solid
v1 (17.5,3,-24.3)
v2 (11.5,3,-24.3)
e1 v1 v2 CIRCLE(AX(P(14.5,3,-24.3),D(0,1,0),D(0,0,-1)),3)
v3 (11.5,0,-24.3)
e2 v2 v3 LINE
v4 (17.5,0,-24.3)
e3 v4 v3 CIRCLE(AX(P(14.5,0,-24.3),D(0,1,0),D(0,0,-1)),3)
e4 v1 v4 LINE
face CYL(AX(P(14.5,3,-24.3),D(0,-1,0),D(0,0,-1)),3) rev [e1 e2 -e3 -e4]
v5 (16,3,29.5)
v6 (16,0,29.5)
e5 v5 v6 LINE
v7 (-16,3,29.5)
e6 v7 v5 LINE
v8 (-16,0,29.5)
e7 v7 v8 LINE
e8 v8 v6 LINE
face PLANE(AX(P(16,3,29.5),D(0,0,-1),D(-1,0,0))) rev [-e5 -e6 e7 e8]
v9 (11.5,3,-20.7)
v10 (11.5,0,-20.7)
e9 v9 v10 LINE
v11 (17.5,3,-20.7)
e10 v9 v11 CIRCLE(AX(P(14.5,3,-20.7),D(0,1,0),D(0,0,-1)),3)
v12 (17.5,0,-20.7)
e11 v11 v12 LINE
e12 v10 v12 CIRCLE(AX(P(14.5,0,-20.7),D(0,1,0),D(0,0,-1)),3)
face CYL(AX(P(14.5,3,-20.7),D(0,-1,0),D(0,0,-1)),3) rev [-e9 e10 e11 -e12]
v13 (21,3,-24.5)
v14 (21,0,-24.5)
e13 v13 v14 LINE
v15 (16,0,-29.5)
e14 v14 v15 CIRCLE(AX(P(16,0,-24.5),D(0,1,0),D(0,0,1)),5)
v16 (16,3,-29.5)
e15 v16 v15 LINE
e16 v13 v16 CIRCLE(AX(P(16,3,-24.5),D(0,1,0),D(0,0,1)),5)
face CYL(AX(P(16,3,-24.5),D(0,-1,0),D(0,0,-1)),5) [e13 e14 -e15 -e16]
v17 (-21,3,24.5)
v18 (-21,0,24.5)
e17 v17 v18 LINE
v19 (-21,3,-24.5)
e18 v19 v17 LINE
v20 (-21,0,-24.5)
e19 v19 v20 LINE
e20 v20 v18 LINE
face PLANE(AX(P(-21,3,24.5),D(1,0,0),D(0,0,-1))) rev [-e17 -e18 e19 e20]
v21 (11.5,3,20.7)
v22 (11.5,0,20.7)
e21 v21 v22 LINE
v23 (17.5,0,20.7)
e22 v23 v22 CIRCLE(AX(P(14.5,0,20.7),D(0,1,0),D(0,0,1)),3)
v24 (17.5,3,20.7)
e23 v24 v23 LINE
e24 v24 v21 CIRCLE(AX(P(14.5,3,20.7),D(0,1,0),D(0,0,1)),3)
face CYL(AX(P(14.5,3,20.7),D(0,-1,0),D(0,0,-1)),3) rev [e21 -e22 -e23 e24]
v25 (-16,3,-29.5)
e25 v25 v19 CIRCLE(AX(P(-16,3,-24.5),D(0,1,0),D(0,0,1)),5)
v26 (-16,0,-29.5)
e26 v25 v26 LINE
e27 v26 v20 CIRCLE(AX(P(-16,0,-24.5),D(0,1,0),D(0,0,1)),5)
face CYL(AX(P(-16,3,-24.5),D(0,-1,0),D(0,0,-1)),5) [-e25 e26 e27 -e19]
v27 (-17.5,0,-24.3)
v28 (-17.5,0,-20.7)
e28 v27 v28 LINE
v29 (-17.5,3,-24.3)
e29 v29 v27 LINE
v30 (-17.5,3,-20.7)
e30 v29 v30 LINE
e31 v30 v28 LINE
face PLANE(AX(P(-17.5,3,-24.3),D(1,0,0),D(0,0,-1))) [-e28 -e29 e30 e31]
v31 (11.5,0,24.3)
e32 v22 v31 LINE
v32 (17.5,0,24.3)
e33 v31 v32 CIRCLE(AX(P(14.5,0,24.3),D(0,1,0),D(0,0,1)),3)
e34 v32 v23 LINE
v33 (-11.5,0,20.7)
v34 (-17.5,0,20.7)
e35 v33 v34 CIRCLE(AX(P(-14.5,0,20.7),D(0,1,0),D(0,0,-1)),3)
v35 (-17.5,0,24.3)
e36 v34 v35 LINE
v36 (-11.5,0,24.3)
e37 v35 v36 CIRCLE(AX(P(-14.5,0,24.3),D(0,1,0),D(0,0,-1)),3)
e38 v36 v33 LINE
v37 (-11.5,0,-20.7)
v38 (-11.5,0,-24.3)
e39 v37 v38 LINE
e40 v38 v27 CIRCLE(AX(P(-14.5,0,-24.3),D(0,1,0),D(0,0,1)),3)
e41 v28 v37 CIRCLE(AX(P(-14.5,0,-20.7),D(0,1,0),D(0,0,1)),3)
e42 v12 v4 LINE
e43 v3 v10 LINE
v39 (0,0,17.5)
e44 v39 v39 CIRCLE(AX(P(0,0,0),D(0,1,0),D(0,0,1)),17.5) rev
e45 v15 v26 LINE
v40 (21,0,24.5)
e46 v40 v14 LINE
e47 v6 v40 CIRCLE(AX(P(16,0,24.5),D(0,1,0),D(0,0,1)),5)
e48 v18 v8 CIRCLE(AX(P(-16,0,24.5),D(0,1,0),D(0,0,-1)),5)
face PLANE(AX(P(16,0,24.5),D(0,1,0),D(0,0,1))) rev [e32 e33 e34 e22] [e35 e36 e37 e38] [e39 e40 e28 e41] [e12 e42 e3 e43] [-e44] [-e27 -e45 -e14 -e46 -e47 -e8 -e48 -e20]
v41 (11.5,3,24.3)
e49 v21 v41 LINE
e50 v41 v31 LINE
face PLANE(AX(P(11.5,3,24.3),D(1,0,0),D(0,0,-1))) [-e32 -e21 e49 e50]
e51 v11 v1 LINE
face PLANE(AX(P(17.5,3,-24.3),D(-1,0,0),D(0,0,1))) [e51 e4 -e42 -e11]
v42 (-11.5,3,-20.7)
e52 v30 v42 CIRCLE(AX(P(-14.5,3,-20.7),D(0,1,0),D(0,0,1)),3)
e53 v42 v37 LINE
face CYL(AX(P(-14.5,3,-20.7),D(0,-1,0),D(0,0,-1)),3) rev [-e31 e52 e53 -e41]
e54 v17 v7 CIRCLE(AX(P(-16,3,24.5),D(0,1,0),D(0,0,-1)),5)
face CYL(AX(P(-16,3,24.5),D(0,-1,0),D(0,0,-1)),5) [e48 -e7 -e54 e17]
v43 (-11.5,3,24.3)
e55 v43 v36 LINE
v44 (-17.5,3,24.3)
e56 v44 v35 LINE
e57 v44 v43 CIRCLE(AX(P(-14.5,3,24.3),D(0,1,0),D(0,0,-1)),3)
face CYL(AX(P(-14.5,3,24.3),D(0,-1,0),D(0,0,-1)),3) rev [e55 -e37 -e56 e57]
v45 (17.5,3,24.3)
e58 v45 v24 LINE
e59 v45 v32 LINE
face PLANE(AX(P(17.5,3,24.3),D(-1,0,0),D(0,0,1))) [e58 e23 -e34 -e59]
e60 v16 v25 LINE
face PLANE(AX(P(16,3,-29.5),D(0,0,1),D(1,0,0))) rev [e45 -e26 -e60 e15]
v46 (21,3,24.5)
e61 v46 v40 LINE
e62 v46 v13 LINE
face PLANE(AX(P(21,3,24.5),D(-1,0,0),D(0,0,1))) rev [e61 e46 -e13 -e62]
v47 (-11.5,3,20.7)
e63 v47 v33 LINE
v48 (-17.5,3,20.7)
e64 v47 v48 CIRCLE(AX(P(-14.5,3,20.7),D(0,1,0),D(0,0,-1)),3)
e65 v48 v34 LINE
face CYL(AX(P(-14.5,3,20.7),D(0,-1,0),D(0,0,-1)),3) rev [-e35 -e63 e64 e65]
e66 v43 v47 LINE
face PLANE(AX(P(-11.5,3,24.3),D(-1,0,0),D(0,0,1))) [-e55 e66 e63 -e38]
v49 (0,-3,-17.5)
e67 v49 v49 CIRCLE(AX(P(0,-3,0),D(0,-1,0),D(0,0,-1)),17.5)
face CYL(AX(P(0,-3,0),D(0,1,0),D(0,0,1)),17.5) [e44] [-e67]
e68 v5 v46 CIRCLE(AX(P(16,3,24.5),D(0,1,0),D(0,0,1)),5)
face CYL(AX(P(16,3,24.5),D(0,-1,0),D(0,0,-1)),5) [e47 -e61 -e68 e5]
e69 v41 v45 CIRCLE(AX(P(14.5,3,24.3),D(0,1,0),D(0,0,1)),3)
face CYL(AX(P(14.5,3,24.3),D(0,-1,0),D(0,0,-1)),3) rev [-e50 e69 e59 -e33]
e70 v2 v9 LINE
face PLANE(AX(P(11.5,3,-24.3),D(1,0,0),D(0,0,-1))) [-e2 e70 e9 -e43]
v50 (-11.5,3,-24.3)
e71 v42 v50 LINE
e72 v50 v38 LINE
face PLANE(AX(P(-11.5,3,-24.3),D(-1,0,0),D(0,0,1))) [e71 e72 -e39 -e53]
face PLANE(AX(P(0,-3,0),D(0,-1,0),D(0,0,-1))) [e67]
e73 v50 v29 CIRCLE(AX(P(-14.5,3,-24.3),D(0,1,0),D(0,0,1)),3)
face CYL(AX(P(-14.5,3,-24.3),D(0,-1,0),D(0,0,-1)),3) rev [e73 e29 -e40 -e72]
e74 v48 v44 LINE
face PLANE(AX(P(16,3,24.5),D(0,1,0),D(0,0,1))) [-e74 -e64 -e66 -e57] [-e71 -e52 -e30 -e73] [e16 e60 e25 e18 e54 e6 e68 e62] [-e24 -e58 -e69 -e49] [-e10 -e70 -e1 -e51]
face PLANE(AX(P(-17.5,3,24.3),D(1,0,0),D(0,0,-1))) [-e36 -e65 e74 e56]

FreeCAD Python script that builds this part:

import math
import FreeCAD as App
import Part
import Sketcher
from FreeCAD import Vector
Q = App.Units.Quantity

doc = App.newDocument("Part")
body = doc.addObject("PartDesign::Body", "Body")

# Sketch on XZ plane
sketch1 = body.newObject("Sketcher::SketchObject", "Sketch")
sketch1.AttachmentSupport = (doc.getObject("XZ_Plane"), [""])
sketch1.MapMode = "FlatFace"
sketch1.addGeometry(Part.LineSegment(Vector(-16, 29.5, 0), Vector(16, 29.5, 0)), False)
sketch1.addGeometry(Part.ArcOfCircle(Part.Circle(Vector(16, 24.5, 0), Vector(0, 0, 1), 5), math.radians(0), math.radians(90)), False)
sketch1.addGeometry(Part.LineSegment(Vector(21, 24.5, 0), Vector(21, -24.5, 0)), False)
sketch1.addGeometry(Part.ArcOfCircle(Part.Circle(Vector(16, -24.5, 0), Vector(0, 0, 1), 5), math.radians(-90), math.radians(0)), False)
sketch1.addGeometry(Part.LineSegment(Vector(16, -29.5, 0), Vector(-16, -29.5, 0)), False)
sketch1.addGeometry(Part.ArcOfCircle(Part.Circle(Vector(-16, -24.5, 0), Vector(0, 0, 1), 5), math.radians(180), math.radians(270)), False)
sketch1.addGeometry(Part.LineSegment(Vector(-21, -24.5, 0), Vector(-21, 24.5, 0)), False)
sketch1.addGeometry(Part.ArcOfCircle(Part.Circle(Vector(-16, 24.5, 0), Vector(0, 0, 1), 5), math.radians(90), math.radians(180)), False)
sketch1.addGeometry(Part.LineSegment(Vector(11.5, 24.3, 0), Vector(11.5, 20.7, 0)), False)
sketch1.addGeometry(Part.ArcOfCircle(Part.Circle(Vector(14.5, 20.7, 0), Vector(0, 0, 1), 3), math.radians(180), math.radians(360)), False)
sketch1.addGeometry(Part.LineSegment(Vector(17.5, 20.7, 0), Vector(17.5, 24.3, 0)), False)
sketch1.addGeometry(Part.ArcOfCircle(Part.Circle(Vector(14.5, 24.3, 0), Vector(0, 0, 1), 3), math.radians(0), math.radians(180)), False)
sketch1.addGeometry(Part.ArcOfCircle(Part.Circle(Vector(-14.5, 24.3, 0), Vector(0, 0, 1), 3), math.radians(0), math.radians(180)), False)
sketch1.addGeometry(Part.LineSegment(Vector(-17.5, 24.3, 0), Vector(-17.5, 20.7, 0)), False)
sketch1.addGeometry(Part.ArcOfCircle(Part.Circle(Vector(-14.5, 20.7, 0), Vector(0, 0, 1), 3), math.radians(180), math.radians(360)), False)
sketch1.addGeometry(Part.LineSegment(Vector(-11.5, 20.7, 0), Vector(-11.5, 24.3, 0)), False)
sketch1.addGeometry(Part.ArcOfCircle(Part.Circle(Vector(14.5, -24.3, 0), Vector(0, 0, 1), 3), math.radians(180), math.radians(360)), False)
sketch1.addGeometry(Part.LineSegment(Vector(17.5, -24.3, 0), Vector(17.5, -20.7, 0)), False)
sketch1.addGeometry(Part.ArcOfCircle(Part.Circle(Vector(14.5, -20.7, 0), Vector(0, 0, 1), 3), math.radians(0), math.radians(180)), False)
sketch1.addGeometry(Part.LineSegment(Vector(11.5, -20.7, 0), Vector(11.5, -24.3, 0)), False)
sketch1.addGeometry(Part.LineSegment(Vector(-11.5, -24.3, 0), Vector(-11.5, -20.7, 0)), False)
sketch1.addGeometry(Part.ArcOfCircle(Part.Circle(Vector(-14.5, -20.7, 0), Vector(0, 0, 1), 3), math.radians(0), math.radians(180)), False)
sketch1.addGeometry(Part.LineSegment(Vector(-17.5, -20.7, 0), Vector(-17.5, -24.3, 0)), False)
sketch1.addGeometry(Part.ArcOfCircle(Part.Circle(Vector(-14.5, -24.3, 0), Vector(0, 0, 1), 3), math.radians(180), math.radians(360)), False)
sketch1.addConstraint(Sketcher.Constraint("Tangent", 0, 2, 1, 2))
sketch1.addConstraint(Sketcher.Constraint("Tangent", 1, 1, 2, 1))
sketch1.addConstraint(Sketcher.Constraint("Tangent", 2, 2, 3, 2))
sketch1.addConstraint(Sketcher.Constraint("Tangent", 3, 1, 4, 1))
sketch1.addConstraint(Sketcher.Constraint("Tangent", 4, 2, 5, 2))
sketch1.addConstraint(Sketcher.Constraint("Tangent", 5, 1, 6, 1))
sketch1.addConstraint(Sketcher.Constraint("Tangent", 6, 2, 7, 2))
sketch1.addConstraint(Sketcher.Constraint("Tangent", 7, 1, 0, 1))
sketch1.addConstraint(Sketcher.Constraint("Tangent", 8, 2, 9, 1))
sketch1.addConstraint(Sketcher.Constraint("Tangent", 9, 2, 10, 1))
sketch1.addConstraint(Sketcher.Constraint("Tangent", 10, 2, 11, 1))
sketch1.addConstraint(Sketcher.Constraint("Tangent", 11, 2, 8, 1))
sketch1.addConstraint(Sketcher.Constraint("Tangent", 12, 2, 13, 1))
sketch1.addConstraint(Sketcher.Constraint("Tangent", 13, 2, 14, 1))
sketch1.addConstraint(Sketcher.Constraint("Tangent", 14, 2, 15, 1))
sketch1.addConstraint(Sketcher.Constraint("Tangent", 15, 2, 12, 1))
sketch1.addConstraint(Sketcher.Constraint("Tangent", 16, 2, 17, 1))
sketch1.addConstraint(Sketcher.Constraint("Tangent", 17, 2, 18, 1))
sketch1.addConstraint(Sketcher.Constraint("Tangent", 18, 2, 19, 1))
sketch1.addConstraint(Sketcher.Constraint("Tangent", 19, 2, 16, 1))
sketch1.addConstraint(Sketcher.Constraint("Tangent", 20, 2, 21, 1))
sketch1.addConstraint(Sketcher.Constraint("Tangent", 21, 2, 22, 1))
sketch1.addConstraint(Sketcher.Constraint("Tangent", 22, 2, 23, 1))
sketch1.addConstraint(Sketcher.Constraint("Tangent", 23, 2, 20, 1))
sketch1.addConstraint(Sketcher.Constraint("Horizontal", 0))
sketch1.addConstraint(Sketcher.Constraint("Vertical", 2))
sketch1.addConstraint(Sketcher.Constraint("Horizontal", 4))
sketch1.addConstraint(Sketcher.Constraint("Vertical", 6))
sketch1.addConstraint(Sketcher.Constraint("Vertical", 8))
sketch1.addConstraint(Sketcher.Constraint("Vertical", 10))
sketch1.addConstraint(Sketcher.Constraint("Vertical", 13))
sketch1.addConstraint(Sketcher.Constraint("Vertical", 15))
sketch1.addConstraint(Sketcher.Constraint("Vertical", 17))
sketch1.addConstraint(Sketcher.Constraint("Vertical", 19))
sketch1.addConstraint(Sketcher.Constraint("Vertical", 20))
sketch1.addConstraint(Sketcher.Constraint("Vertical", 22))
sketch1.addConstraint(Sketcher.Constraint("Equal", 1, 3))
sketch1.addConstraint(Sketcher.Constraint("Equal", 3, 5))
sketch1.addConstraint(Sketcher.Constraint("Equal", 5, 7))
sketch1.addConstraint(Sketcher.Constraint("Equal", 11, 12))
sketch1.addConstraint(Sketcher.Constraint("Equal", 14, 16))
sketch1.addConstraint(Sketcher.Constraint("Equal", 18, 21))
sketch1.addConstraint(Sketcher.Constraint("Symmetric", 1, 3, 5, 3, -1, 1))
sketch1.addConstraint(Sketcher.Constraint("Symmetric", 12, 3, 16, 3, -1, 1))
sketch1.addConstraint(Sketcher.Constraint("Symmetric", 9, 3, 21, 3, -1, 1))
sketch1.addConstraint(Sketcher.Constraint("Symmetric", 11, 3, 12, 3, -2))
sketch1.addConstraint(Sketcher.Constraint("Horizontal", 9, 3, 14, 3))
sketch1.addConstraint(Sketcher.Constraint("Horizontal", 18, 3, 21, 3))
sketch1.addConstraint(Sketcher.Constraint("Horizontal", 16, 3, 23, 3))
sketch1.addConstraint(Sketcher.Constraint("Radius", 1, Q("5 mm")))
sketch1.addConstraint(Sketcher.Constraint("Radius", 9, Q("3 mm")))
sketch1.addConstraint(Sketcher.Constraint("DistanceX", 0, 1, 0, 2, Q("32 mm")))
sketch1.addConstraint(Sketcher.Constraint("DistanceY", 2, 2, 2, 1, Q("49 mm")))
sketch1.addConstraint(Sketcher.Constraint("DistanceY", 8, 2, 8, 1, Q("3.6 mm")))
sketch1.addConstraint(Sketcher.Constraint("DistanceX", 12, 3, 11, 3, Q("29 mm")))
sketch1.addConstraint(Sketcher.Constraint("DistanceY", 16, 3, 9, 3, Q("45 mm")))
pad1 = body.newObject("PartDesign::Pad", "Pad")
pad1.Profile = sketch1
pad1.Length = 3
pad1.Reversed = True

# Sketch on XZ plane
sketch2 = body.newObject("Sketcher::SketchObject", "Sketch001")
sketch2.AttachmentSupport = (doc.getObject("XZ_Plane"), [""])
sketch2.MapMode = "FlatFace"
sketch2.addGeometry(Part.Circle(Vector(0, 0, 0), Vector(0, 0, 1), 18), False)
sketch2.addConstraint(Sketcher.Constraint("Coincident", 0, 3, -1, 1))
sketch2.addConstraint(Sketcher.Constraint("Diameter", 0, Q("35 mm")))
pad2 = body.newObject("PartDesign::Pad", "Pad001")
pad2.Profile = sketch2
pad2.Length = 3

doc.recompute()
